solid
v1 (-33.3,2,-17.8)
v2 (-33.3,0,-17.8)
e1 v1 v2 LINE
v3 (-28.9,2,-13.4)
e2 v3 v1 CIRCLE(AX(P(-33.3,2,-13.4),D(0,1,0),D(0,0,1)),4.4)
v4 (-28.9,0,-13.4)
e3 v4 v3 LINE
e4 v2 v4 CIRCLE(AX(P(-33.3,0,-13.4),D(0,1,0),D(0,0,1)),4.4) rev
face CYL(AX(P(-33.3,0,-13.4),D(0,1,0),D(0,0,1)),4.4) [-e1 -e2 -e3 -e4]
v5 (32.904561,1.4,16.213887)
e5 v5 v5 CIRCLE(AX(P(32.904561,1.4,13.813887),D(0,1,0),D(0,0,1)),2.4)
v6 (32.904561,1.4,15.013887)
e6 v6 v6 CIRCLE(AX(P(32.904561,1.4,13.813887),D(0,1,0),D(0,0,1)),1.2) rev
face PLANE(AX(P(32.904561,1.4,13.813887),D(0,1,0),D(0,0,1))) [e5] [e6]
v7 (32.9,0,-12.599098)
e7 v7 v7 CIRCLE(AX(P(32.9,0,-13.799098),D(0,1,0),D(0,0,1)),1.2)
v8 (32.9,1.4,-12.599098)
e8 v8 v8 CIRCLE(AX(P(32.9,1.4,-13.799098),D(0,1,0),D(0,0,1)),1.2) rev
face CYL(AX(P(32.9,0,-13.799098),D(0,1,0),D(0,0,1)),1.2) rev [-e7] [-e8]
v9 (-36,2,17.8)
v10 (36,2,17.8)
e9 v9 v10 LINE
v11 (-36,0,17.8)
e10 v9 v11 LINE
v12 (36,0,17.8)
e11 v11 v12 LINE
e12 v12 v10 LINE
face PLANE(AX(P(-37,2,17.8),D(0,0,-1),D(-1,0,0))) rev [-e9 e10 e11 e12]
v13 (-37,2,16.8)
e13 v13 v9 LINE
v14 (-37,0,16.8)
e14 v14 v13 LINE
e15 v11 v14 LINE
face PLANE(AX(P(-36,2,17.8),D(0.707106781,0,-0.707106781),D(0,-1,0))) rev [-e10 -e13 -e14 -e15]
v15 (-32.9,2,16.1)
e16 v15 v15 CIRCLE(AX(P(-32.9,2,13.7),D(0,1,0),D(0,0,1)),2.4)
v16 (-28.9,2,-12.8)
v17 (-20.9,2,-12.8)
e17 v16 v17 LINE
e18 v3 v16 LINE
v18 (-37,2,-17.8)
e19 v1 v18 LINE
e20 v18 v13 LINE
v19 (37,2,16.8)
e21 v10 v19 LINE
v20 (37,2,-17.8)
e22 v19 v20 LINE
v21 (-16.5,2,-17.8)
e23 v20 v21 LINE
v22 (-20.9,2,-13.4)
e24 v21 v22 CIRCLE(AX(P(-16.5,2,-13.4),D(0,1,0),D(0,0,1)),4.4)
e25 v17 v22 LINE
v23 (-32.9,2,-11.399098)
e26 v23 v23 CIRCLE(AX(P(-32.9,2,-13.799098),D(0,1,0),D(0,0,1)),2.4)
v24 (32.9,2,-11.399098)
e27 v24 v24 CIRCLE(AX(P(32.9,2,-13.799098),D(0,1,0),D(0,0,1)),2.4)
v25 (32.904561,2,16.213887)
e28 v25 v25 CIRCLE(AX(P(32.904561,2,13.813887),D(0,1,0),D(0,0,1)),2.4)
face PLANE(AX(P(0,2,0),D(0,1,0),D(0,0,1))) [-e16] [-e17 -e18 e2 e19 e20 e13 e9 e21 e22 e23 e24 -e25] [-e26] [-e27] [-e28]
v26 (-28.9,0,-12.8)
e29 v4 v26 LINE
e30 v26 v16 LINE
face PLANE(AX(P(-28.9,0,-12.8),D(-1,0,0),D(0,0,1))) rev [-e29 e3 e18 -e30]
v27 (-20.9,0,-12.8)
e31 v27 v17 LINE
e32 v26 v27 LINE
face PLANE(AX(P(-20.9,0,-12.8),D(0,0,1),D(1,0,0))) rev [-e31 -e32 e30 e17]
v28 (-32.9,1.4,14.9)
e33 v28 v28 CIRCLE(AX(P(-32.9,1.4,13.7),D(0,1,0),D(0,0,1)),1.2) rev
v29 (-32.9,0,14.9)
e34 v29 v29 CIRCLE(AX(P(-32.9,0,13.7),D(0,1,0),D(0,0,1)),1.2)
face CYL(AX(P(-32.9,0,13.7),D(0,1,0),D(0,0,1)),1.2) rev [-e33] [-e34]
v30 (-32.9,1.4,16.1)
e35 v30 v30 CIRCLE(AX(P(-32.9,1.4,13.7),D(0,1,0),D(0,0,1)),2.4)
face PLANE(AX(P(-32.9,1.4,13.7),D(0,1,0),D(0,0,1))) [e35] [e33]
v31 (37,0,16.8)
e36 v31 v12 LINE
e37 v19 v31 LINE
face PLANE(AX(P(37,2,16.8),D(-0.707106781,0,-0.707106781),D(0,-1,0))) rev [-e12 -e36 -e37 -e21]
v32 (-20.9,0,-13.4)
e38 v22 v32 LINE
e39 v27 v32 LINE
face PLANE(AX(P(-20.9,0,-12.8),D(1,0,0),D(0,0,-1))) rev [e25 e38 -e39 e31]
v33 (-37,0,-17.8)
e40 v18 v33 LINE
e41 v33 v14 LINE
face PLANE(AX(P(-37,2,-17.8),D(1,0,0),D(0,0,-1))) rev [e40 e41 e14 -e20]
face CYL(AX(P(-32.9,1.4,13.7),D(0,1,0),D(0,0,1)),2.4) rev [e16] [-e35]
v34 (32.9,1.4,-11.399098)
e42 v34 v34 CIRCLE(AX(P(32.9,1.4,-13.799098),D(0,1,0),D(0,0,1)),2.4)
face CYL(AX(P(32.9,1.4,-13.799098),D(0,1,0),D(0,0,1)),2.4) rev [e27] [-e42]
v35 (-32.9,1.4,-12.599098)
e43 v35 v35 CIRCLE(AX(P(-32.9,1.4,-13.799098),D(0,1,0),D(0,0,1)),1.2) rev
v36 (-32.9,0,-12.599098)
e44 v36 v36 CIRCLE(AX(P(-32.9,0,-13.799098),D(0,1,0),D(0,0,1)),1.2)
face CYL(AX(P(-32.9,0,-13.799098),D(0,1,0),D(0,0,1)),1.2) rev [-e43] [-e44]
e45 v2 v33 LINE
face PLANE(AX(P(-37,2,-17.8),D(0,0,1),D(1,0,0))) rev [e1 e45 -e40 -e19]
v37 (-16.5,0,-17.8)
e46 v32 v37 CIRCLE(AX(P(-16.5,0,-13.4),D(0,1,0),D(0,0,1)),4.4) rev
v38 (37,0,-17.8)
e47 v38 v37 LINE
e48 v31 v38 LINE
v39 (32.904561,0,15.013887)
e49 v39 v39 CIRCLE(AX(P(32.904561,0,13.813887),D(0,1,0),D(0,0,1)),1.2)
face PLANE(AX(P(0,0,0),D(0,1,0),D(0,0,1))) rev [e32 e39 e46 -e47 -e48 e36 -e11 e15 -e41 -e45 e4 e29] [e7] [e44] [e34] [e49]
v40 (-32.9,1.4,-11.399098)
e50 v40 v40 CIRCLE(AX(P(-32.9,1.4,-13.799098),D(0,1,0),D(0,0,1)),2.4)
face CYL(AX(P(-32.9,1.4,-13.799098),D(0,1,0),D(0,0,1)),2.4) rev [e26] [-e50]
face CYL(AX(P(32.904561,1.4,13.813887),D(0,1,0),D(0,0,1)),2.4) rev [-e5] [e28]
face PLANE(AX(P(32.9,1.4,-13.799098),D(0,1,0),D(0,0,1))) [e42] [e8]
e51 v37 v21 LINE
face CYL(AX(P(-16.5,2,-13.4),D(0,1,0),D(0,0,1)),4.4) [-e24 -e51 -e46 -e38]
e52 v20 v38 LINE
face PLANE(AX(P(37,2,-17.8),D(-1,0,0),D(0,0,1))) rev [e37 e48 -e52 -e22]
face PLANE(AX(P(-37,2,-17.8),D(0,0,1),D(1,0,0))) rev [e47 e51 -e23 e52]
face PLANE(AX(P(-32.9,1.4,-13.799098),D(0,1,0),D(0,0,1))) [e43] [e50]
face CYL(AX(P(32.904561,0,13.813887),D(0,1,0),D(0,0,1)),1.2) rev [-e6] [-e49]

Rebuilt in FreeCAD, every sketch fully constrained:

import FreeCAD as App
import Part
import Sketcher
from FreeCAD import Vector
Q = App.Units.Quantity


def edges_at(feature, points):
    """Names of the edges that pass closest to the given points."""
    edges = feature.Shape.Edges
    near = lambda p: min(range(len(edges)), key=lambda i: edges[i].distToShape(Part.Vertex(*p))[0])
    return sorted({f"Edge{near(p) + 1}" for p in points})

doc = App.newDocument("Part")
params = doc.addObject("Spreadsheet::Sheet", "Params")
for row, (alias, value) in enumerate([
    ("sketch1_width", "74 mm"),
    ("sketch1_height", "35.6 mm"),
    ("pad1_length", "2 mm"),
    ("chamfer_size", "1 mm"),
    ("sketch2_diameter", "2.4 mm"),
    ("sketch3_diameter", "4.8 mm"),
    ("pocket2_length", "0.6 mm"),
    ("sketch4_width", "8 mm"),
    ("sketch4_height", "5 mm"),
    ("fillet_radius", "4.4 mm"),
], start=1):
    params.set(f"A{row}", alias)
    params.set(f"B{row}", "=" + value)
    params.setAlias(f"B{row}", alias)

body = doc.addObject("PartDesign::Body", "Body")

sketch1 = body.newObject("Sketcher::SketchObject", "Sketch")
sketch1.AttachmentSupport = (doc.getObject("XZ_Plane"), [""])
sketch1.MapMode = "FlatFace"
sketch1.addGeometry(Part.LineSegment(Vector(-37, -18, 0), Vector(-37, 18, 0)), False)
sketch1.addGeometry(Part.LineSegment(Vector(-37, 18, 0), Vector(37, 18, 0)), False)
sketch1.addGeometry(Part.LineSegment(Vector(37, 18, 0), Vector(37, -18, 0)), False)
sketch1.addGeometry(Part.LineSegment(Vector(37, -18, 0), Vector(-37, -18, 0)), False)
sketch1.addConstraint(Sketcher.Constraint("Coincident", 0, 2, 1, 1))
sketch1.addConstraint(Sketcher.Constraint("Coincident", 1, 2, 2, 1))
sketch1.addConstraint(Sketcher.Constraint("Coincident", 2, 2, 3, 1))
sketch1.addConstraint(Sketcher.Constraint("Coincident", 3, 2, 0, 1))
sketch1.addConstraint(Sketcher.Constraint("Vertical", 0))
sketch1.addConstraint(Sketcher.Constraint("Horizontal", 1))
sketch1.addConstraint(Sketcher.Constraint("Vertical", 2))
sketch1.addConstraint(Sketcher.Constraint("Horizontal", 3))
sketch1.addConstraint(Sketcher.Constraint("Symmetric", 0, 2, 2, 2, -1, 1))
sketch1.addConstraint(Sketcher.Constraint("DistanceX", 1, 1, 1, 2, Q("74 mm")))
sketch1.addConstraint(Sketcher.Constraint("DistanceY", 0, 1, 0, 2, Q("35.6 mm")))
sketch1.setExpression("Constraints[9]", "Params.sketch1_width")
sketch1.setExpression("Constraints[10]", "Params.sketch1_height")
pad1 = body.newObject("PartDesign::Pad", "Pad")
pad1.Profile = sketch1
pad1.setExpression("Length", "Params.pad1_length")
pad1.Reversed = True
doc.recompute()

chamfer = body.newObject("PartDesign::Chamfer", "Chamfer")
chamfer.Base = (pad1, edges_at(pad1, [(37, 1, 17.8), (-37, 1, 17.8)]))
chamfer.setExpression("Size", "Params.chamfer_size")

sketch2 = body.newObject("Sketcher::SketchObject", "Sketch001")
sketch2.AttachmentSupport = (doc.getObject("XZ_Plane"), [""])
sketch2.MapMode = "FlatFace"
sketch2.AttachmentOffset = App.Placement(Vector(0, 0, -2), App.Rotation())
sketch2.addGeometry(Part.Circle(Vector(32.9, 13.8, 0), Vector(0, 0, 1), 1.2), False)
sketch2.addGeometry(Part.Circle(Vector(-32.9, 13.7, 0), Vector(0, 0, 1), 1.2), False)
sketch2.addGeometry(Part.Circle(Vector(-32.9, -13.8, 0), Vector(0, 0, 1), 1.2), False)
sketch2.addGeometry(Part.Circle(Vector(32.9, -13.8, 0), Vector(0, 0, 1), 1.2), False)
sketch2.addConstraint(Sketcher.Constraint("Equal", 0, 1))
sketch2.addConstraint(Sketcher.Constraint("Equal", 1, 2))
sketch2.addConstraint(Sketcher.Constraint("Equal", 2, 3))
sketch2.addConstraint(Sketcher.Constraint("Symmetric", 2, 3, 3, 3, -2))
sketch2.addConstraint(Sketcher.Constraint("Vertical", 1, 3, 2, 3))
sketch2.addConstraint(Sketcher.Constraint("Diameter", 0, Q("2.4 mm")))
sketch2.addConstraint(Sketcher.Constraint("DistanceX", 1, 3, -1, 1, Q("32.9 mm")))
sketch2.addConstraint(Sketcher.Constraint("DistanceY", -1, 1, 1, 3, Q("13.7 mm")))
sketch2.addConstraint(Sketcher.Constraint("DistanceY", 2, 3, -1, 1, Q("13.799098 mm")))
sketch2.addConstraint(Sketcher.Constraint("DistanceX", -1, 1, 0, 3, Q("32.904561 mm")))
sketch2.addConstraint(Sketcher.Constraint("DistanceY", -1, 1, 0, 3, Q("13.813887 mm")))
sketch2.setExpression("Constraints[5]", "Params.sketch2_diameter")
pocket1 = body.newObject("PartDesign::Pocket", "Pocket")
pocket1.Profile = sketch2
pocket1.Type = "ThroughAll"
pocket1.Reversed = True

sketch3 = body.newObject("Sketcher::SketchObject", "Sketch002")
sketch3.AttachmentSupport = (doc.getObject("XZ_Plane"), [""])
sketch3.MapMode = "FlatFace"
sketch3.AttachmentOffset = App.Placement(Vector(0, 0, -2), App.Rotation())
sketch3.addGeometry(Part.Circle(Vector(32.9, 13.8, 0), Vector(0, 0, 1), 2.4), False)
sketch3.addGeometry(Part.Circle(Vector(-32.9, 13.7, 0), Vector(0, 0, 1), 2.4), False)
sketch3.addGeometry(Part.Circle(Vector(32.9, -13.8, 0), Vector(0, 0, 1), 2.4), False)
sketch3.addGeometry(Part.Circle(Vector(-32.9, -13.8, 0), Vector(0, 0, 1), 2.4), False)
sketch3.addConstraint(Sketcher.Constraint("Equal", 0, 1))
sketch3.addConstraint(Sketcher.Constraint("Equal", 1, 2))
sketch3.addConstraint(Sketcher.Constraint("Equal", 2, 3))
sketch3.addConstraint(Sketcher.Constraint("Symmetric", 2, 3, 3, 3, -2))
sketch3.addConstraint(Sketcher.Constraint("Vertical", 1, 3, 3, 3))
sketch3.addConstraint(Sketcher.Constraint("Diameter", 0, Q("4.8 mm")))
sketch3.addConstraint(Sketcher.Constraint("DistanceX", 1, 3, -1, 1, Q("32.9 mm")))
sketch3.addConstraint(Sketcher.Constraint("DistanceY", -1, 1, 1, 3, Q("13.7 mm")))
sketch3.addConstraint(Sketcher.Constraint("DistanceY", 2, 3, -1, 1, Q("13.799098 mm")))
sketch3.addConstraint(Sketcher.Constraint("DistanceX", -1, 1, 0, 3, Q("32.904561 mm")))
sketch3.addConstraint(Sketcher.Constraint("DistanceY", -1, 1, 0, 3, Q("13.813887 mm")))
sketch3.setExpression("Constraints[5]", "Params.sketch3_diameter")
pocket2 = body.newObject("PartDesign::Pocket", "Pocket001")
pocket2.Profile = sketch3
pocket2.setExpression("Length", "Params.pocket2_length")
pocket2.Reversed = True

sketch4 = body.newObject("Sketcher::SketchObject", "Sketch003")
sketch4.AttachmentSupport = (doc.getObject("XZ_Plane"), [""])
sketch4.MapMode = "FlatFace"
sketch4.AttachmentOffset = App.Placement(Vector(0, 0, -2), App.Rotation())
sketch4.addGeometry(Part.LineSegment(Vector(-29, -18, 0), Vector(-29, -13, 0)), False)
sketch4.addGeometry(Part.LineSegment(Vector(-29, -13, 0), Vector(-21, -13, 0)), False)
sketch4.addGeometry(Part.LineSegment(Vector(-21, -13, 0), Vector(-21, -18, 0)), False)
sketch4.addGeometry(Part.LineSegment(Vector(-21, -18, 0), Vector(-29, -18, 0)), False)
sketch4.addConstraint(Sketcher.Constraint("Coincident", 0, 2, 1, 1))
sketch4.addConstraint(Sketcher.Constraint("Coincident", 1, 2, 2, 1))
sketch4.addConstraint(Sketcher.Constraint("Coincident", 2, 2, 3, 1))
sketch4.addConstraint(Sketcher.Constraint("Coincident", 3, 2, 0, 1))
sketch4.addConstraint(Sketcher.Constraint("Vertical", 0))
sketch4.addConstraint(Sketcher.Constraint("Horizontal", 1))
sketch4.addConstraint(Sketcher.Constraint("Vertical", 2))
sketch4.addConstraint(Sketcher.Constraint("Horizontal", 3))
sketch4.addConstraint(Sketcher.Constraint("DistanceX", 1, 1, 1, 2, Q("8 mm")))
sketch4.addConstraint(Sketcher.Constraint("DistanceY", 0, 1, 0, 2, Q("5 mm")))
sketch4.addConstraint(Sketcher.Constraint("DistanceX", 0, 2, -1, 1, Q("28.9 mm")))
sketch4.addConstraint(Sketcher.Constraint("DistanceY", 0, 2, -1, 1, Q("12.8 mm")))
sketch4.setExpression("Constraints[8]", "Params.sketch4_width")
sketch4.setExpression("Constraints[9]", "Params.sketch4_height")
pocket3 = body.newObject("PartDesign::Pocket", "Pocket002")
pocket3.Profile = sketch4
pocket3.Type = "ThroughAll"
pocket3.Reversed = True
doc.recompute()

fillet = body.newObject("PartDesign::Fillet", "Fillet")
fillet.Base = (pocket3, edges_at(pocket3, [(-20.9, 1, -17.8), (-28.9, 1, -17.8)]))
fillet.setExpression("Radius", "Params.fillet_radius")

doc.recompute()
